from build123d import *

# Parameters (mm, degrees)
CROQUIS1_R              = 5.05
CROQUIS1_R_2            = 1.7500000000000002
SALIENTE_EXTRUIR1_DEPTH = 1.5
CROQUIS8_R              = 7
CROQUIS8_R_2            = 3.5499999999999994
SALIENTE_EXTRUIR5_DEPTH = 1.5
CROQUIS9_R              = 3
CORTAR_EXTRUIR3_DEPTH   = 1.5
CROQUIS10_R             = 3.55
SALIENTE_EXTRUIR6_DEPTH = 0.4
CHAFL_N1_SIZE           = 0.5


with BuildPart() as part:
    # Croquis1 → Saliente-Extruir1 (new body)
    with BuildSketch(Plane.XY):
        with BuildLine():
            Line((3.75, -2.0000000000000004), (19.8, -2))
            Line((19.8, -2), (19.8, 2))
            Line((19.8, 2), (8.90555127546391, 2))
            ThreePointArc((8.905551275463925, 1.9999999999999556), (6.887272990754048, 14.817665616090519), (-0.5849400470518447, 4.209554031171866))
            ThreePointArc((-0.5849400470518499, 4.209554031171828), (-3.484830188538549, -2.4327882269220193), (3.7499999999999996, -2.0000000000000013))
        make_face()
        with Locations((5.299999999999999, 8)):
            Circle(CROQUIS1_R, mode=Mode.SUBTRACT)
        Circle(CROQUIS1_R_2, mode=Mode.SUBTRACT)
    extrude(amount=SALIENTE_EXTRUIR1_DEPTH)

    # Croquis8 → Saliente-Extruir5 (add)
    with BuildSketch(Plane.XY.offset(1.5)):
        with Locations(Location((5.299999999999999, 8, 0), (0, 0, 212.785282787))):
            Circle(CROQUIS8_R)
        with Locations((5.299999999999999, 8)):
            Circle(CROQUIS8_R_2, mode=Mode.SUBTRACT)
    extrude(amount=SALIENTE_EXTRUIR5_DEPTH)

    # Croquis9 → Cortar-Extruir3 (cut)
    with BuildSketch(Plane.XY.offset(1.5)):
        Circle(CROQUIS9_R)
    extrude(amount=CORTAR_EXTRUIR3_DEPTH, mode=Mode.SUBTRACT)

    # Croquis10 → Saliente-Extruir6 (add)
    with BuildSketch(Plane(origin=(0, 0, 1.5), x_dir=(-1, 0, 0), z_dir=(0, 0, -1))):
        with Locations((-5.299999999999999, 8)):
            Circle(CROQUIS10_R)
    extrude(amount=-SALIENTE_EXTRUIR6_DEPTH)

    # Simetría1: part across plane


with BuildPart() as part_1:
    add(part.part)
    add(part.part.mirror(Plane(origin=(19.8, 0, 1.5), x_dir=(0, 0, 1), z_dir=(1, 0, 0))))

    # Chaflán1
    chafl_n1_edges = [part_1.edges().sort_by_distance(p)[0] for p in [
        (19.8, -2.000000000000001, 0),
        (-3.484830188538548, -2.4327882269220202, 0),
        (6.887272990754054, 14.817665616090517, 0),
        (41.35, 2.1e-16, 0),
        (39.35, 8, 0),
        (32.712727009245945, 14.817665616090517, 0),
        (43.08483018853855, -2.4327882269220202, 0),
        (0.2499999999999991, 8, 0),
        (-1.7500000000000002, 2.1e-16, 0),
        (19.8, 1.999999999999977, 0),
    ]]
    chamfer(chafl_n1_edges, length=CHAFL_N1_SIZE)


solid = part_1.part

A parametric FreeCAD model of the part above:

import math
import FreeCAD as App
import Part
import Sketcher
from FreeCAD import Vector
Q = App.Units.Quantity


def edges_at(feature, points):
    """Names of the edges that pass closest to the given points."""
    edges = feature.Shape.Edges
    near = lambda p: min(range(len(edges)), key=lambda i: edges[i].distToShape(Part.Vertex(*p))[0])
    return sorted({f"Edge{near(p) + 1}" for p in points})

doc = App.newDocument("Part")
body = doc.addObject("PartDesign::Body", "Body")

# Sketch on XY plane
sketch1 = body.newObject("Sketcher::SketchObject", "Sketch")
sketch1.AttachmentSupport = (doc.getObject("XY_Plane"), [""])
sketch1.MapMode = "FlatFace"
sketch1.addGeometry([
    Part.LineSegment(Vector(3.75, -2, 0), Vector(19.8, -2, 0)),  # 0
    Part.LineSegment(Vector(19.8, -2, 0), Vector(19.8, 2, 0)),  # 1
    Part.LineSegment(Vector(19.8, 2, 0), Vector(8.905551, 2, 0)),  # 2
    Part.ArcOfCircle(Part.Circle(Vector(5.3, 8, 0), Vector(0, 0, 1), 7), math.radians(-58.997281), math.radians(212.785283)),  # 3
    Part.ArcOfCircle(Part.Circle(Vector(0, 0, 0), Vector(0, 0, 1), 4.25), math.radians(97.910898), math.radians(331.927513)),  # 4
    Part.Circle(Vector(0, 0, 0), Vector(0, 0, 1), 1.75),  # 5
    Part.Circle(Vector(5.3, 8, 0), Vector(0, 0, 1), 5.05),  # 6
], False)
sketch1.addConstraint([
    Sketcher.Constraint("Coincident", 0, 2, 1, 1),
    Sketcher.Constraint("Coincident", 1, 2, 2, 1),
    Sketcher.Constraint("Coincident", 2, 2, 3, 1),
    Sketcher.Constraint("Coincident", 3, 2, 4, 1),
    Sketcher.Constraint("Coincident", 4, 2, 0, 1),
    Sketcher.Constraint("Horizontal", 0),
    Sketcher.Constraint("Vertical", 1),
    Sketcher.Constraint("Horizontal", 2),
    Sketcher.Constraint("Coincident", 4, 3, -1, 1),
    Sketcher.Constraint("Coincident", 5, 3, -1, 1),
    Sketcher.Constraint("Coincident", 6, 3, 3, 3),
    Sketcher.Constraint("Radius", 3, Q("7 mm")),
    Sketcher.Constraint("Diameter", 5, Q("3.5 mm")),
    Sketcher.Constraint("Diameter", 6, Q("10.1 mm")),
    Sketcher.Constraint("DistanceY", 1, 1, 1, 2, Q("4 mm")),
    Sketcher.Constraint("Radius", 4, Q("4.25 mm")),
    Sketcher.Constraint("DistanceY", -1, 1, 3, 3, Q("8 mm")),
    Sketcher.Constraint("DistanceY", 0, 2, -1, 1, Q("2 mm")),
    Sketcher.Constraint("DistanceX", 0, 1, 0, 2, Q("16.05 mm")),
    Sketcher.Constraint("DistanceX", -1, 1, 3, 3, Q("5.3 mm")),
])
pad1 = body.newObject("PartDesign::Pad", "Pad")
pad1.Profile = sketch1
pad1.Length = 1.5

# Sketch on XY plane
sketch2 = body.newObject("Sketcher::SketchObject", "Sketch001")
sketch2.AttachmentSupport = (doc.getObject("XY_Plane"), [""])
sketch2.MapMode = "FlatFace"
sketch2.AttachmentOffset = App.Placement(Vector(0, 0, 1.5), App.Rotation())
sketch2.addGeometry([
    Part.Circle(Vector(5.3, 8, 0), Vector(0, 0, 1), 7),
    Part.Circle(Vector(5.3, 8, 0), Vector(0, 0, 1), 3.55),
], False)
sketch2.addConstraint([
    Sketcher.Constraint("Coincident", 1, 3, 0, 3),
    Sketcher.Constraint("Diameter", 0, Q("14 mm")),
    Sketcher.Constraint("Diameter", 1, Q("7.1 mm")),
    Sketcher.Constraint("DistanceY", -1, 1, 0, 3, Q("8 mm")),
    Sketcher.Constraint("DistanceX", -1, 1, 0, 3, Q("5.3 mm")),
])
pad2 = body.newObject("PartDesign::Pad", "Pad001")
pad2.Profile = sketch2
pad2.Length = 1.5

# Sketch on XY plane
sketch3 = body.newObject("Sketcher::SketchObject", "Sketch002")
sketch3.AttachmentSupport = (doc.getObject("XY_Plane"), [""])
sketch3.MapMode = "FlatFace"
sketch3.AttachmentOffset = App.Placement(Vector(0, 0, 1.5), App.Rotation())
sketch3.addGeometry(Part.Circle(Vector(0, 0, 0), Vector(0, 0, 1), 3), False)
sketch3.addConstraint([
    Sketcher.Constraint("Coincident", 0, 3, -1, 1),
    Sketcher.Constraint("Diameter", 0, Q("6 mm")),
])
pocket1 = body.newObject("PartDesign::Pocket", "Pocket")
pocket1.Profile = sketch3
pocket1.Length = 1.5
pocket1.Reversed = True

# Sketch on XY plane
sketch4 = body.newObject("Sketcher::SketchObject", "Sketch003")
sketch4.AttachmentSupport = (doc.getObject("XY_Plane"), [""])
sketch4.MapMode = "FlatFace"
sketch4.AttachmentOffset = App.Placement(Vector(0, 0, 1.5), App.Rotation())
sketch4.addGeometry(Part.Circle(Vector(5.3, 8, 0), Vector(0, 0, 1), 3.55), False)
sketch4.addConstraint([
    Sketcher.Constraint("Diameter", 0, Q("7.1 mm")),
    Sketcher.Constraint("DistanceY", -1, 1, 0, 3, Q("8 mm")),
    Sketcher.Constraint("DistanceX", -1, 1, 0, 3, Q("5.3 mm")),
])
pad3 = body.newObject("PartDesign::Pad", "Pad002")
pad3.Profile = sketch4
pad3.Length = 0.4
body2 = doc.addObject("PartDesign::Body", "Body001")
doc.recompute()

body2.BaseFeature = body
doc.recompute()

mirroring = doc.addObject("Part::Mirroring", "Mirroring")
mirroring.Source = body
mirroring.Base = Vector(19.8, 0, 1.5)
mirroring.Normal = Vector(1, 0, 0)
body3 = doc.addObject("PartDesign::Body", "Body002")
body3.BaseFeature = mirroring
boolean = body2.newObject("PartDesign::Boolean", "Boolean")
boolean.Type = "Fuse"
boolean.addObjects([body3])
doc.recompute()

chamfer = body2.newObject("PartDesign::Chamfer", "Chamfer")
chamfer.Base = (boolean, edges_at(boolean, [
    (19.8, -2, 0),
    (-3.485, -2.433, 0),
    (6.887, 14.818, 0),
    (41.35, 0, 0),
    (39.35, 8, 0),
    (32.713, 14.818, 0),
    (43.085, -2.433, 0),
    (0.25, 8, 0),
    (-1.75, 0, 0),
    (19.8, 2, 0),
]))
chamfer.Size = 0.5
mirroring.Visibility = False

doc.recompute()
